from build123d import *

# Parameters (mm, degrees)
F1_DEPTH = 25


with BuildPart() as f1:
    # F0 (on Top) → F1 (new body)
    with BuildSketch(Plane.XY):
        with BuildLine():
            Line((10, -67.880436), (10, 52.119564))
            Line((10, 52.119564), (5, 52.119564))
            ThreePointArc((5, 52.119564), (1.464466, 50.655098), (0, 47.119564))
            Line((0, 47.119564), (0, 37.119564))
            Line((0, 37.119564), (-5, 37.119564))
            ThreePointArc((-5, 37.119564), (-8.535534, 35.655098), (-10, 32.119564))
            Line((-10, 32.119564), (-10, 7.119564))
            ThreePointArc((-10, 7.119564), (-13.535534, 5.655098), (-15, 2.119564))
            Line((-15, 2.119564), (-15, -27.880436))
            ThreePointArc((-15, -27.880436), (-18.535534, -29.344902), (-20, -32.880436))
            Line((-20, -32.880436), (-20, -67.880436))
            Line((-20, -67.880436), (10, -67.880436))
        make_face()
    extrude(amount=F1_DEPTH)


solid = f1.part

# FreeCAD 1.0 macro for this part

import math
import FreeCAD as App
import Part
import Sketcher
Q = App.Units.Quantity

doc = App.newDocument("Part")
body = doc.addObject("PartDesign::Body", "Body")

sketch1 = body.newObject("Sketcher::SketchObject", "Sketch")
sketch1.AttachmentSupport = (doc.getObject("XY_Plane"), [""])
sketch1.MapMode = "FlatFace"
sketch1.addGeometry(Part.LineSegment(App.Vector(10, -67.880436, 0), App.Vector(10, 52.119564, 0)), False)
sketch1.addGeometry(Part.LineSegment(App.Vector(10, 52.119564, 0), App.Vector(5, 52.119564, 0)), False)
sketch1.addGeometry(Part.ArcOfCircle(Part.Circle(App.Vector(5, 47.119564, 0), App.Vector(0, 0, 1), 5), math.radians(89.999996), math.radians(180.000004)), False)
sketch1.addGeometry(Part.LineSegment(App.Vector(0, 47.119564, 0), App.Vector(0, 37.119564, 0)), False)
sketch1.addGeometry(Part.LineSegment(App.Vector(0, 37.119564, 0), App.Vector(-5, 37.119564, 0)), False)
sketch1.addGeometry(Part.ArcOfCircle(Part.Circle(App.Vector(-5, 32.119564, 0), App.Vector(0, 0, 1), 5), math.radians(89.999996), math.radians(180.000004)), False)
sketch1.addGeometry(Part.LineSegment(App.Vector(-10, 32.119564, 0), App.Vector(-10, 7.119564, 0)), False)
sketch1.addGeometry(Part.ArcOfCircle(Part.Circle(App.Vector(-10, 2.119564, 0), App.Vector(0, 0, 1), 5), math.radians(89.999996), math.radians(180.000004)), False)
sketch1.addGeometry(Part.LineSegment(App.Vector(-15, 2.119564, 0), App.Vector(-15, -27.880436, 0)), False)
sketch1.addGeometry(Part.ArcOfCircle(Part.Circle(App.Vector(-15, -32.880436, 0), App.Vector(0, 0, 1), 5), math.radians(89.999996), math.radians(180.000004)), False)
sketch1.addGeometry(Part.LineSegment(App.Vector(-20, -32.880436, 0), App.Vector(-20, -67.880436, 0)), False)
sketch1.addGeometry(Part.LineSegment(App.Vector(-20, -67.880436, 0), App.Vector(10, -67.880436, 0)), False)
sketch1.addConstraint(Sketcher.Constraint("Coincident", 0, 2, 1, 1))
sketch1.addConstraint(Sketcher.Constraint("Tangent", 1, 2, 2, 1))
sketch1.addConstraint(Sketcher.Constraint("Tangent", 2, 2, 3, 1))
sketch1.addConstraint(Sketcher.Constraint("Coincident", 3, 2, 4, 1))
sketch1.addConstraint(Sketcher.Constraint("Tangent", 4, 2, 5, 1))
sketch1.addConstraint(Sketcher.Constraint("Tangent", 5, 2, 6, 1))
sketch1.addConstraint(Sketcher.Constraint("Coincident", 6, 2, 7, 1))
sketch1.addConstraint(Sketcher.Constraint("Tangent", 7, 2, 8, 1))
sketch1.addConstraint(Sketcher.Constraint("Coincident", 8, 2, 9, 1))
sketch1.addConstraint(Sketcher.Constraint("Tangent", 9, 2, 10, 1))
sketch1.addConstraint(Sketcher.Constraint("Coincident", 10, 2, 11, 1))
sketch1.addConstraint(Sketcher.Constraint("Coincident", 11, 2, 0, 1))
sketch1.addConstraint(Sketcher.Constraint("Vertical", 0))
sketch1.addConstraint(Sketcher.Constraint("Horizontal", 1))
sketch1.addConstraint(Sketcher.Constraint("Vertical", 3))
sketch1.addConstraint(Sketcher.Constraint("Horizontal", 4))
sketch1.addConstraint(Sketcher.Constraint("Vertical", 6))
sketch1.addConstraint(Sketcher.Constraint("Vertical", 8))
sketch1.addConstraint(Sketcher.Constraint("Vertical", 10))
sketch1.addConstraint(Sketcher.Constraint("Horizontal", 11))
sketch1.addConstraint(Sketcher.Constraint("Equal", 2, 5))
sketch1.addConstraint(Sketcher.Constraint("Equal", 5, 7))
sketch1.addConstraint(Sketcher.Constraint("Equal", 7, 9))
sketch1.addConstraint(Sketcher.Constraint("PointOnObject", 2, 2, -2))
sketch1.addConstraint(Sketcher.Constraint("Vertical", 7, 3, 5, 2))
sketch1.addConstraint(Sketcher.Constraint("Vertical", 9, 3, 7, 2))
sketch1.addConstraint(Sketcher.Constraint("Equal", 1, 4))
sketch1.addConstraint(Sketcher.Constraint("Equal", 11, 8))
sketch1.addConstraint(Sketcher.Constraint("Radius", 2, Q("5 mm")))
sketch1.addConstraint(Sketcher.Constraint("DistanceX", 1, 2, 1, 1, Q("5 mm")))
sketch1.addConstraint(Sketcher.Constraint("DistanceY", 0, 1, 0, 2, Q("120 mm")))
sketch1.addConstraint(Sketcher.Constraint("DistanceY", 3, 2, 3, 1, Q("10 mm")))
sketch1.addConstraint(Sketcher.Constraint("DistanceY", 6, 2, 6, 1, Q("25 mm")))
sketch1.addConstraint(Sketcher.Constraint("DistanceY", -1, 1, 2, 3, Q("47.119564 mm")))
pad1 = body.newObject("PartDesign::Pad", "Pad")
pad1.Profile = sketch1
pad1.Length = 25

doc.recompute()
